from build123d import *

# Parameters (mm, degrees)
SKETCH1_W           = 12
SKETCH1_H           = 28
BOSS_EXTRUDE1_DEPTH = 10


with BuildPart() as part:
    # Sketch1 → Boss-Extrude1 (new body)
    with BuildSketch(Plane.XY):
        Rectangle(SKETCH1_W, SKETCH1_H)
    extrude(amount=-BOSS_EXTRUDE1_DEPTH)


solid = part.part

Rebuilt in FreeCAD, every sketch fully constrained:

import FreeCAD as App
import Part
import Sketcher
Q = App.Units.Quantity


def add_polygon(sketch, points):
    """Adds a closed chain of lines whose ends are joined by coincident constraints."""
    first, n = sketch.GeometryCount, len(points)
    for a, b in zip(points, points[1:] + points[:1]):
        sketch.addGeometry(Part.LineSegment(App.Vector(*a, 0), App.Vector(*b, 0)), False)
    for i in range(n):
        sketch.addConstraint(Sketcher.Constraint("Coincident", first + i, 2, first + (i + 1) % n, 1))

doc = App.newDocument("Part")
body = doc.addObject("PartDesign::Body", "Body")

sketch1 = doc.addObject("Sketcher::SketchObject", "Sketch")
body.addObject(sketch1)
sketch1.AttachmentSupport = (doc.XY_Plane, [""])
sketch1.MapMode = "FlatFace"
add_polygon(sketch1, [(-6, 14), (-6, -14), (6, -14), (6, 14)])
sketch1.addConstraint(Sketcher.Constraint("Vertical", 0))
sketch1.addConstraint(Sketcher.Constraint("Horizontal", 1))
sketch1.addConstraint(Sketcher.Constraint("Vertical", 2))
sketch1.addConstraint(Sketcher.Constraint("Horizontal", 3))
sketch1.addConstraint(Sketcher.Constraint("Symmetric", 0, 2, 2, 2, -1, 1))
sketch1.addConstraint(Sketcher.Constraint("DistanceX", 1, 1, 1, 2, Q("12 mm")))
sketch1.addConstraint(Sketcher.Constraint("DistanceY", 0, 2, 0, 1, Q("28 mm")))
pad1 = doc.addObject("PartDesign::Pad", "Pad")
body.addObject(pad1)
pad1.Profile = sketch1
pad1.Length = 10
pad1.Reversed = True

doc.recompute()
